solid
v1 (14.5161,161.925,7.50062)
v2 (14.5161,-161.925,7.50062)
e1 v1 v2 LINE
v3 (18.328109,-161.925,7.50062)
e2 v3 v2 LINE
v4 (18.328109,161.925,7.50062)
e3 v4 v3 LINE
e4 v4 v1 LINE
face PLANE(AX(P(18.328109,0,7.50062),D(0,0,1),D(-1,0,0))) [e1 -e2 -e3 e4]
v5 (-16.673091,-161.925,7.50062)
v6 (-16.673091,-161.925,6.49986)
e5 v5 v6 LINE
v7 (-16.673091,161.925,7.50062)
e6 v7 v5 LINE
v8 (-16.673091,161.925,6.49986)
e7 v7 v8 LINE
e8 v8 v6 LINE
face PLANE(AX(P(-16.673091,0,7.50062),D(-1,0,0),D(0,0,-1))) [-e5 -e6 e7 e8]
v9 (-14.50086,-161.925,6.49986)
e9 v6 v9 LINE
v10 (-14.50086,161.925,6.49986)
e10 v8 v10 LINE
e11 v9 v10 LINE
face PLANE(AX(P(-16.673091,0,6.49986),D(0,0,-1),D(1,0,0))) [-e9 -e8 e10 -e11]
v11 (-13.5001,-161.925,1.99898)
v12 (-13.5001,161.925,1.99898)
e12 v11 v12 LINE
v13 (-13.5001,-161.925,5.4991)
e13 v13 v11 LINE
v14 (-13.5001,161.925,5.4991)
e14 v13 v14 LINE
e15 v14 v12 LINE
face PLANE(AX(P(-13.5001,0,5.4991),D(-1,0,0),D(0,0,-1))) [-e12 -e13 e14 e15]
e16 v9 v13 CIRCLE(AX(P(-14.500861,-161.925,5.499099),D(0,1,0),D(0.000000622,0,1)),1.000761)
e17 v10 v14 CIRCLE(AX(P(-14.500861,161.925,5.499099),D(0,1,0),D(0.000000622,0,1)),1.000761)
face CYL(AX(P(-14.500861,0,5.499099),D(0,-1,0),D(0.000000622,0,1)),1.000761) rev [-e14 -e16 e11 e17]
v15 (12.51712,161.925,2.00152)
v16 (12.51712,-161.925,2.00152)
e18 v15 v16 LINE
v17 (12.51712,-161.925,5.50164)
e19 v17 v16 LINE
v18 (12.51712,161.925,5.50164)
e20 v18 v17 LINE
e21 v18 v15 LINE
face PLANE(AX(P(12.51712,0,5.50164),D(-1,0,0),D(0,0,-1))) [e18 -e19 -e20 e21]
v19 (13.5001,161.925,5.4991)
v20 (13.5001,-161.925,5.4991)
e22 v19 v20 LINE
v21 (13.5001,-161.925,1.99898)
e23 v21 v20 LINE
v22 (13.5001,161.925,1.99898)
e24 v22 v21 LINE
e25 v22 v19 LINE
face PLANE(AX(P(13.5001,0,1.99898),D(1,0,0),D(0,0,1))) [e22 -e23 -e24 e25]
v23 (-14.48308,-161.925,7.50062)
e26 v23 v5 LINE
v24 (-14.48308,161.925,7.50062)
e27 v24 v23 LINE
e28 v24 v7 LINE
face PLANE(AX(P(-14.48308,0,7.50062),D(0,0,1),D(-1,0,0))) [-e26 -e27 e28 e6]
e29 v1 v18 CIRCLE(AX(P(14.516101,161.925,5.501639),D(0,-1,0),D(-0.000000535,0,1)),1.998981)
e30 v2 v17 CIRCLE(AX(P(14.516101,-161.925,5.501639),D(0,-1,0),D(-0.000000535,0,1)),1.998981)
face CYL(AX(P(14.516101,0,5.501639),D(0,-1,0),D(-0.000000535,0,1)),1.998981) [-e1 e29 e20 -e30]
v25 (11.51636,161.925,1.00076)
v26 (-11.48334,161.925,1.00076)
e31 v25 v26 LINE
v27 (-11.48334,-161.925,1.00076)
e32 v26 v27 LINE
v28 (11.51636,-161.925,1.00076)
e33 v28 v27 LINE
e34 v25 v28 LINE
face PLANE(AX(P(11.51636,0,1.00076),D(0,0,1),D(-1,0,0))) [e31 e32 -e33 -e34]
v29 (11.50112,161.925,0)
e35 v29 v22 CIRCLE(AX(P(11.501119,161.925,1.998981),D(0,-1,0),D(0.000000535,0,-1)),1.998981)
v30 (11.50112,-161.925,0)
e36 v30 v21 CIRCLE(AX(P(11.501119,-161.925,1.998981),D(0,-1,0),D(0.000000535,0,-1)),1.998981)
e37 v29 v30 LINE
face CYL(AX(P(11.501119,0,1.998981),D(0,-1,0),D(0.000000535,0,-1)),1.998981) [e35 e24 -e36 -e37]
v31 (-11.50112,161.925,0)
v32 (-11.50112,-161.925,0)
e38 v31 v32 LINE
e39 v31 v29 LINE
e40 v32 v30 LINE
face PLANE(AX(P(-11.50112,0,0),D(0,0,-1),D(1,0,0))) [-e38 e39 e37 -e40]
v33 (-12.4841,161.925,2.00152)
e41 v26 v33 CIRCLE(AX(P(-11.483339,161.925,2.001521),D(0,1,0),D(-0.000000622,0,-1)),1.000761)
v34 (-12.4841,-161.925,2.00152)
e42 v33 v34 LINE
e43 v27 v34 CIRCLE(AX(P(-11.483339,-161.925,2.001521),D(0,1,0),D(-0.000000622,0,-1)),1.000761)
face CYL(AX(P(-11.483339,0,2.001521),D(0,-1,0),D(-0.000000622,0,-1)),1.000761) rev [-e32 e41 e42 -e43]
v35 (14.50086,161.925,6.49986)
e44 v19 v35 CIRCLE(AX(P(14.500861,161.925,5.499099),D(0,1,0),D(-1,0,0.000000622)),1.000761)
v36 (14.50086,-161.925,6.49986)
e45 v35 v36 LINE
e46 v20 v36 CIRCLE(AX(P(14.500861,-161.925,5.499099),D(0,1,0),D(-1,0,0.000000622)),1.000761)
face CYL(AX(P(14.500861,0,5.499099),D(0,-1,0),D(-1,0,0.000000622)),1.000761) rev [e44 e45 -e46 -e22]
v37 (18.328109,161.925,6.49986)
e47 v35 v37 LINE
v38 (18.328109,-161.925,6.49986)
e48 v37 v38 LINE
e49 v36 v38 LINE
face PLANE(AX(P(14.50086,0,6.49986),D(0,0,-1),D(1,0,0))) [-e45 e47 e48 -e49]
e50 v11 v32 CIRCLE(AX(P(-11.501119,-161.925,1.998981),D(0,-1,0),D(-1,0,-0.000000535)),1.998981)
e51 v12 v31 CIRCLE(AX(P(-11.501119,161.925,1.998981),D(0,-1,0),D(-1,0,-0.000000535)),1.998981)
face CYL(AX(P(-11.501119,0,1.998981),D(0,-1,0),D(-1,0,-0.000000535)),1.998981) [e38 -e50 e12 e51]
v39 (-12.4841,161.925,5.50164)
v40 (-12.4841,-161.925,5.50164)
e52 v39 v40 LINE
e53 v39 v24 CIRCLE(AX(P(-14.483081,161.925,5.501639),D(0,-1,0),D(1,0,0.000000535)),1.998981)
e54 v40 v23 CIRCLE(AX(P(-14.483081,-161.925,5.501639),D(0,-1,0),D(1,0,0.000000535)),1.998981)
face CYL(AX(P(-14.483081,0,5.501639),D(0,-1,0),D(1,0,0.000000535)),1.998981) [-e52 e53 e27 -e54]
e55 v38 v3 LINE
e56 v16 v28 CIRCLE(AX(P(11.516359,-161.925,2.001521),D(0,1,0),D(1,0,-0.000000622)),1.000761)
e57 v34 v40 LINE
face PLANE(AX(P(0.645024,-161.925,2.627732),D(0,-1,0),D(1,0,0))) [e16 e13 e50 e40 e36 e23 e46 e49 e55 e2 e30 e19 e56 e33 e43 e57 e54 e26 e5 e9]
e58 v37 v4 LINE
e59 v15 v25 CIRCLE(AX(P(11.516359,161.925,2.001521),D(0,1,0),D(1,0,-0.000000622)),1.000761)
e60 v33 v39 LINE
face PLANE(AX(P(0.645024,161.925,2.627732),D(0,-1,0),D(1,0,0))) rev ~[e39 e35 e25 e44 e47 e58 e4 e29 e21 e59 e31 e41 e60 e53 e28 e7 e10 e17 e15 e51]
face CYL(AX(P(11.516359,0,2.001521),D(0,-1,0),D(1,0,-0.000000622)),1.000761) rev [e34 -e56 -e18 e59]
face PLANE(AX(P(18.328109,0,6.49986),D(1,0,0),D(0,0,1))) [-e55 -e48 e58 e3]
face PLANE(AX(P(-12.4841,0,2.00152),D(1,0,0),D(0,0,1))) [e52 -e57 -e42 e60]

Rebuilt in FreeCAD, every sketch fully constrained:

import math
import FreeCAD as App
import Part
import Sketcher
from FreeCAD import Vector
Q = App.Units.Quantity

doc = App.newDocument("Part")
body = doc.addObject("PartDesign::Body", "Body")

# Sketch on XZ plane
sketch1 = doc.addObject("Sketcher::SketchObject", "Sketch")
body.addObject(sketch1)
sketch1.AttachmentSupport = (doc.XZ_Plane, [""])
sketch1.MapMode = "FlatFace"
sketch1.addGeometry(Part.ArcOfCircle(Part.Circle(Vector(-11.5, 2, 0), Vector(0, 0, 1), 2), math.radians(-180), math.radians(-90)), False)
sketch1.addGeometry(Part.LineSegment(Vector(-11.5, 0, 0), Vector(11.5, 0, 0)), False)
sketch1.addGeometry(Part.ArcOfCircle(Part.Circle(Vector(11.5, 2, 0), Vector(0, 0, 1), 2), math.radians(-90), math.radians(0)), False)
sketch1.addGeometry(Part.LineSegment(Vector(13.5, 2, 0), Vector(13.5, 5.5, 0)), False)
sketch1.addGeometry(Part.ArcOfCircle(Part.Circle(Vector(14.5, 5.5, 0), Vector(0, 0, 1), 1), math.radians(90), math.radians(180)), False)
sketch1.addGeometry(Part.LineSegment(Vector(14.5, 6.5, 0), Vector(18.3, 6.5, 0)), False)
sketch1.addGeometry(Part.LineSegment(Vector(18.3, 6.5, 0), Vector(18.3, 7.5, 0)), False)
sketch1.addGeometry(Part.LineSegment(Vector(18.3, 7.5, 0), Vector(14.5, 7.5, 0)), False)
sketch1.addGeometry(Part.ArcOfCircle(Part.Circle(Vector(14.5, 5.5, 0), Vector(0, 0, 1), 2), math.radians(90), math.radians(180)), False)
sketch1.addGeometry(Part.LineSegment(Vector(12.5, 5.5, 0), Vector(12.5, 2, 0)), False)
sketch1.addGeometry(Part.ArcOfCircle(Part.Circle(Vector(11.5, 2, 0), Vector(0, 0, 1), 1), math.radians(-90), math.radians(0)), False)
sketch1.addGeometry(Part.LineSegment(Vector(11.5, 1, 0), Vector(-11.5, 1, 0)), False)
sketch1.addGeometry(Part.ArcOfCircle(Part.Circle(Vector(-11.5, 2, 0), Vector(0, 0, 1), 1), math.radians(-180), math.radians(-90)), False)
sketch1.addGeometry(Part.LineSegment(Vector(-12.5, 2, 0), Vector(-12.5, 5.5, 0)), False)
sketch1.addGeometry(Part.ArcOfCircle(Part.Circle(Vector(-14.5, 5.5, 0), Vector(0, 0, 1), 2), math.radians(0), math.radians(90)), False)
sketch1.addGeometry(Part.LineSegment(Vector(-14.5, 7.5, 0), Vector(-16.7, 7.5, 0)), False)
sketch1.addGeometry(Part.LineSegment(Vector(-16.7, 7.5, 0), Vector(-16.7, 6.5, 0)), False)
sketch1.addGeometry(Part.LineSegment(Vector(-16.7, 6.5, 0), Vector(-14.5, 6.5, 0)), False)
sketch1.addGeometry(Part.ArcOfCircle(Part.Circle(Vector(-14.5, 5.5, 0), Vector(0, 0, 1), 1), math.radians(0), math.radians(90)), False)
sketch1.addGeometry(Part.LineSegment(Vector(-13.5, 5.5, 0), Vector(-13.5, 2, 0)), False)
sketch1.addConstraint(Sketcher.Constraint("Tangent", 0, 2, 1, 1))
sketch1.addConstraint(Sketcher.Constraint("Tangent", 1, 2, 2, 1))
sketch1.addConstraint(Sketcher.Constraint("Tangent", 2, 2, 3, 1))
sketch1.addConstraint(Sketcher.Constraint("Tangent", 3, 2, 4, 2))
sketch1.addConstraint(Sketcher.Constraint("Tangent", 4, 1, 5, 1))
sketch1.addConstraint(Sketcher.Constraint("Coincident", 5, 2, 6, 1))
sketch1.addConstraint(Sketcher.Constraint("Coincident", 6, 2, 7, 1))
sketch1.addConstraint(Sketcher.Constraint("Tangent", 7, 2, 8, 1))
sketch1.addConstraint(Sketcher.Constraint("Tangent", 8, 2, 9, 1))
sketch1.addConstraint(Sketcher.Constraint("Tangent", 9, 2, 10, 2))
sketch1.addConstraint(Sketcher.Constraint("Tangent", 10, 1, 11, 1))
sketch1.addConstraint(Sketcher.Constraint("Tangent", 11, 2, 12, 2))
sketch1.addConstraint(Sketcher.Constraint("Tangent", 12, 1, 13, 1))
sketch1.addConstraint(Sketcher.Constraint("Tangent", 13, 2, 14, 1))
sketch1.addConstraint(Sketcher.Constraint("Tangent", 14, 2, 15, 1))
sketch1.addConstraint(Sketcher.Constraint("Coincident", 15, 2, 16, 1))
sketch1.addConstraint(Sketcher.Constraint("Coincident", 16, 2, 17, 1))
sketch1.addConstraint(Sketcher.Constraint("Tangent", 17, 2, 18, 2))
sketch1.addConstraint(Sketcher.Constraint("Tangent", 18, 1, 19, 1))
sketch1.addConstraint(Sketcher.Constraint("Tangent", 19, 2, 0, 1))
sketch1.addConstraint(Sketcher.Constraint("Horizontal", 1))
sketch1.addConstraint(Sketcher.Constraint("Vertical", 3))
sketch1.addConstraint(Sketcher.Constraint("Horizontal", 5))
sketch1.addConstraint(Sketcher.Constraint("Vertical", 6))
sketch1.addConstraint(Sketcher.Constraint("Horizontal", 7))
sketch1.addConstraint(Sketcher.Constraint("Vertical", 9))
sketch1.addConstraint(Sketcher.Constraint("Horizontal", 11))
sketch1.addConstraint(Sketcher.Constraint("Vertical", 13))
sketch1.addConstraint(Sketcher.Constraint("Horizontal", 15))
sketch1.addConstraint(Sketcher.Constraint("Vertical", 16))
sketch1.addConstraint(Sketcher.Constraint("Horizontal", 17))
sketch1.addConstraint(Sketcher.Constraint("Vertical", 19))
sketch1.addConstraint(Sketcher.Constraint("Equal", 0, 2))
sketch1.addConstraint(Sketcher.Constraint("Equal", 2, 8))
sketch1.addConstraint(Sketcher.Constraint("Equal", 4, 10))
sketch1.addConstraint(Sketcher.Constraint("Equal", 10, 12))
sketch1.addConstraint(Sketcher.Constraint("Equal", 8, 14))
sketch1.addConstraint(Sketcher.Constraint("Equal", 12, 18))
sketch1.addConstraint(Sketcher.Constraint("Symmetric", 0, 2, 1, 2, -1, 1))
sketch1.addConstraint(Sketcher.Constraint("Horizontal", 8, 3, 14, 3))
sketch1.addConstraint(Sketcher.Constraint("Horizontal", 4, 3, 18, 3))
sketch1.addConstraint(Sketcher.Constraint("Equal", 3, 9))
sketch1.addConstraint(Sketcher.Constraint("Radius", 0, Q("0.0787 in")))
sketch1.addConstraint(Sketcher.Constraint("Radius", 4, Q("0.0394 in")))
sketch1.addConstraint(Sketcher.Constraint("DistanceX", 2, 2, 8, 3, Q("0.04 in")))
sketch1.addConstraint(Sketcher.Constraint("DistanceX", 18, 1, 13, 2, Q("0.04 in")))
sketch1.addConstraint(Sketcher.Constraint("DistanceX", 1, 1, 1, 2, Q("0.9056 in")))
sketch1.addConstraint(Sketcher.Constraint("DistanceY", 3, 1, 3, 2, Q("0.1378 in")))
sketch1.addConstraint(Sketcher.Constraint("DistanceY", 6, 1, 6, 2, Q("0.0394 in")))
sketch1.addConstraint(Sketcher.Constraint("DistanceX", 5, 1, 5, 2, Q("3.827249 mm")))
sketch1.addConstraint(Sketcher.Constraint("DistanceX", 15, 2, 15, 1, Q("2.190011 mm")))
pad1 = doc.addObject("PartDesign::Pad", "Pad")
body.addObject(pad1)
pad1.Profile = sketch1
pad1.Length = Q("12.75 in")
pad1.Midplane = True

doc.recompute()
